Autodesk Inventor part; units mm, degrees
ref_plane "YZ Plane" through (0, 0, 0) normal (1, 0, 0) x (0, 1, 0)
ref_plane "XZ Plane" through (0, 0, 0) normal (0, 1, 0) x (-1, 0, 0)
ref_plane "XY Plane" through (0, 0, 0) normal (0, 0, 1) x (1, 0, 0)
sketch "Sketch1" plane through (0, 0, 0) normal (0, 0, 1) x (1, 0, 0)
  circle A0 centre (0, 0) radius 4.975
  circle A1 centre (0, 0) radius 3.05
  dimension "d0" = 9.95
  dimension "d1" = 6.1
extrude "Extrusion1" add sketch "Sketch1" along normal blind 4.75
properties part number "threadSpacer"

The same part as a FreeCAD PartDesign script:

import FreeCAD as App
import Part
import Sketcher
from FreeCAD import Vector
Q = App.Units.Quantity

doc = App.newDocument("Part")
params = doc.addObject("Spreadsheet::Sheet", "Params")
for row, (alias, value) in enumerate([
    ("sketch1_diameter", "6.1 mm"),
    ("sketch1_diameter2", "9.95 mm"),
    ("pad1_length", "4.75 mm"),
], start=1):
    params.set(f"A{row}", alias)
    params.set(f"B{row}", "=" + value)
    params.setAlias(f"B{row}", alias)

body = doc.addObject("PartDesign::Body", "Body")

# Sketch on XY plane
sketch1 = doc.addObject("Sketcher::SketchObject", "Sketch")
body.addObject(sketch1)
sketch1.AttachmentSupport = (doc.XY_Plane, [""])
sketch1.MapMode = "FlatFace"
sketch1.addGeometry([
    Part.Circle(Vector(0, 0, 0), Vector(0, 0, 1), 4.975),
    Part.Circle(Vector(0, 0, 0), Vector(0, 0, 1), 3.05),
], False)
sketch1.addConstraint([
    Sketcher.Constraint("Coincident", 0, 3, -1, 1),
    Sketcher.Constraint("Coincident", 1, 3, -1, 1),
    Sketcher.Constraint("Diameter", 1, Q("6.1 mm")),
    Sketcher.Constraint("Diameter", 0, Q("9.95 mm")),
])
sketch1.setExpression("Constraints[2]", "Params.sketch1_diameter")
sketch1.setExpression("Constraints[3]", "Params.sketch1_diameter2")
pad1 = doc.addObject("PartDesign::Pad", "Pad")
body.addObject(pad1)
pad1.Profile = sketch1
pad1.setExpression("Length", "Params.pad1_length")

doc.recompute()
